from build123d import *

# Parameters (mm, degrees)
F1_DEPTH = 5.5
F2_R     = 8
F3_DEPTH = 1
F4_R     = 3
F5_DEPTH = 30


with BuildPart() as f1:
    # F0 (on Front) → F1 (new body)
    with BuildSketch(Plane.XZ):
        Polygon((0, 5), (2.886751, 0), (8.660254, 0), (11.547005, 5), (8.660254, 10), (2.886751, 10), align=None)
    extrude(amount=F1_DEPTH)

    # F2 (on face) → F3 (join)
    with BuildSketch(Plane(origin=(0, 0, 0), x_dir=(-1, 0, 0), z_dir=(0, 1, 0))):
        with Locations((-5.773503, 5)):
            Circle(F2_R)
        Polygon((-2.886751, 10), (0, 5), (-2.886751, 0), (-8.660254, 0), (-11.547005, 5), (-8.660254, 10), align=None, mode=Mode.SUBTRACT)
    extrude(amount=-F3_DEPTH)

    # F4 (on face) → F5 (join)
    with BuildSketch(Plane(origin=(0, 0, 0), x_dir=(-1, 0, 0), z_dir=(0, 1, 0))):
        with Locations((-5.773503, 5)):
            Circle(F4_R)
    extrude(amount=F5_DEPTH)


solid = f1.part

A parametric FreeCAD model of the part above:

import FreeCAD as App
import Part
import Sketcher
from FreeCAD import Vector
Q = App.Units.Quantity


def add_polygon(sketch, points):
    """Adds a closed chain of lines whose ends are joined by coincident constraints."""
    first, n = sketch.GeometryCount, len(points)
    for a, b in zip(points, points[1:] + points[:1]):
        sketch.addGeometry(Part.LineSegment(App.Vector(*a, 0), App.Vector(*b, 0)), False)
    for i in range(n):
        sketch.addConstraint(Sketcher.Constraint("Coincident", first + i, 2, first + (i + 1) % n, 1))

doc = App.newDocument("Part")
body = doc.addObject("PartDesign::Body", "Body")

# Sketch on XZ plane
sketch1 = doc.addObject("Sketcher::SketchObject", "Sketch")
body.addObject(sketch1)
sketch1.AttachmentSupport = (doc.XZ_Plane, [""])
sketch1.MapMode = "FlatFace"
add_polygon(sketch1, [(0, 5), (3, 0), (9, 0), (12, 5), (9, 10), (3, 10)])  # lines 0-5
sketch1.addConstraint([
    Sketcher.Constraint("Horizontal", 1),
    Sketcher.Constraint("Horizontal", 4),
    Sketcher.Constraint("PointOnObject", 0, 2, -1),
    Sketcher.Constraint("PointOnObject", 5, 2, -2),
    Sketcher.Constraint("Parallel", 0, 3),
    Sketcher.Constraint("Parallel", 2, 5),
    Sketcher.Constraint("Horizontal", 2, 2, 5, 2),
    Sketcher.Constraint("Vertical", 1, 2, 3, 2),
    Sketcher.Constraint("Vertical", 0, 2, 4, 2),
    Sketcher.Constraint("Angle", 0, Q("-60.000003 deg")),
    Sketcher.Constraint("DistanceY", -1, 1, 2, 2, Q("5 mm")),
    Sketcher.Constraint("DistanceX", 1, 1, 1, 2, Q("5.773503 mm")),
])
pad1 = doc.addObject("PartDesign::Pad", "Pad")
body.addObject(pad1)
pad1.Profile = sketch1
pad1.Length = 5.5

# Sketch on XZ plane
sketch2 = doc.addObject("Sketcher::SketchObject", "Sketch001")
body.addObject(sketch2)
sketch2.AttachmentSupport = (doc.XZ_Plane, [""])
sketch2.MapMode = "FlatFace"
sketch2.addGeometry(Part.Circle(Vector(6, 5, 0), Vector(0, 0, 1), 8), False)  # 0
add_polygon(sketch2, [(9, 10), (3, 10), (0, 5), (3, 0), (9, 0), (12, 5)])  # lines 1-6
sketch2.addConstraint([
    Sketcher.Constraint("Horizontal", 1),
    Sketcher.Constraint("Horizontal", 4),
    Sketcher.Constraint("PointOnObject", 2, 2, -2),
    Sketcher.Constraint("PointOnObject", 3, 2, -1),
    Sketcher.Constraint("Parallel", 2, 5),
    Sketcher.Constraint("Parallel", 3, 6),
    Sketcher.Constraint("Horizontal", 0, 3, 2, 2),
    Sketcher.Constraint("Horizontal", 2, 2, 5, 2),
    Sketcher.Constraint("Vertical", 1, 2, 3, 2),
    Sketcher.Constraint("Vertical", 4, 2, 6, 2),
    Sketcher.Constraint("Diameter", 0, Q("16 mm")),
    Sketcher.Constraint("Angle", 2, Q("-119.999997 deg")),
    Sketcher.Constraint("DistanceY", -1, 1, 0, 3, Q("5 mm")),
    Sketcher.Constraint("DistanceX", 1, 2, 1, 1, Q("5.773503 mm")),
    Sketcher.Constraint("DistanceX", 1, 2, 0, 3, Q("2.886752 mm")),
])
pad2 = doc.addObject("PartDesign::Pad", "Pad001")
body.addObject(pad2)
pad2.Profile = sketch2
pad2.Length = 1

# Sketch on XZ plane
sketch3 = doc.addObject("Sketcher::SketchObject", "Sketch002")
body.addObject(sketch3)
sketch3.AttachmentSupport = (doc.XZ_Plane, [""])
sketch3.MapMode = "FlatFace"
sketch3.addGeometry(Part.Circle(Vector(5.8, 5, 0), Vector(0, 0, 1), 3), False)
sketch3.addConstraint([
    Sketcher.Constraint("Diameter", 0, Q("6 mm")),
    Sketcher.Constraint("DistanceY", -1, 1, 0, 3, Q("5 mm")),
    Sketcher.Constraint("DistanceX", -1, 1, 0, 3, Q("5.773503 mm")),
])
pad3 = doc.addObject("PartDesign::Pad", "Pad002")
body.addObject(pad3)
pad3.Profile = sketch3
pad3.Length = 30
pad3.Reversed = True

doc.recompute()
